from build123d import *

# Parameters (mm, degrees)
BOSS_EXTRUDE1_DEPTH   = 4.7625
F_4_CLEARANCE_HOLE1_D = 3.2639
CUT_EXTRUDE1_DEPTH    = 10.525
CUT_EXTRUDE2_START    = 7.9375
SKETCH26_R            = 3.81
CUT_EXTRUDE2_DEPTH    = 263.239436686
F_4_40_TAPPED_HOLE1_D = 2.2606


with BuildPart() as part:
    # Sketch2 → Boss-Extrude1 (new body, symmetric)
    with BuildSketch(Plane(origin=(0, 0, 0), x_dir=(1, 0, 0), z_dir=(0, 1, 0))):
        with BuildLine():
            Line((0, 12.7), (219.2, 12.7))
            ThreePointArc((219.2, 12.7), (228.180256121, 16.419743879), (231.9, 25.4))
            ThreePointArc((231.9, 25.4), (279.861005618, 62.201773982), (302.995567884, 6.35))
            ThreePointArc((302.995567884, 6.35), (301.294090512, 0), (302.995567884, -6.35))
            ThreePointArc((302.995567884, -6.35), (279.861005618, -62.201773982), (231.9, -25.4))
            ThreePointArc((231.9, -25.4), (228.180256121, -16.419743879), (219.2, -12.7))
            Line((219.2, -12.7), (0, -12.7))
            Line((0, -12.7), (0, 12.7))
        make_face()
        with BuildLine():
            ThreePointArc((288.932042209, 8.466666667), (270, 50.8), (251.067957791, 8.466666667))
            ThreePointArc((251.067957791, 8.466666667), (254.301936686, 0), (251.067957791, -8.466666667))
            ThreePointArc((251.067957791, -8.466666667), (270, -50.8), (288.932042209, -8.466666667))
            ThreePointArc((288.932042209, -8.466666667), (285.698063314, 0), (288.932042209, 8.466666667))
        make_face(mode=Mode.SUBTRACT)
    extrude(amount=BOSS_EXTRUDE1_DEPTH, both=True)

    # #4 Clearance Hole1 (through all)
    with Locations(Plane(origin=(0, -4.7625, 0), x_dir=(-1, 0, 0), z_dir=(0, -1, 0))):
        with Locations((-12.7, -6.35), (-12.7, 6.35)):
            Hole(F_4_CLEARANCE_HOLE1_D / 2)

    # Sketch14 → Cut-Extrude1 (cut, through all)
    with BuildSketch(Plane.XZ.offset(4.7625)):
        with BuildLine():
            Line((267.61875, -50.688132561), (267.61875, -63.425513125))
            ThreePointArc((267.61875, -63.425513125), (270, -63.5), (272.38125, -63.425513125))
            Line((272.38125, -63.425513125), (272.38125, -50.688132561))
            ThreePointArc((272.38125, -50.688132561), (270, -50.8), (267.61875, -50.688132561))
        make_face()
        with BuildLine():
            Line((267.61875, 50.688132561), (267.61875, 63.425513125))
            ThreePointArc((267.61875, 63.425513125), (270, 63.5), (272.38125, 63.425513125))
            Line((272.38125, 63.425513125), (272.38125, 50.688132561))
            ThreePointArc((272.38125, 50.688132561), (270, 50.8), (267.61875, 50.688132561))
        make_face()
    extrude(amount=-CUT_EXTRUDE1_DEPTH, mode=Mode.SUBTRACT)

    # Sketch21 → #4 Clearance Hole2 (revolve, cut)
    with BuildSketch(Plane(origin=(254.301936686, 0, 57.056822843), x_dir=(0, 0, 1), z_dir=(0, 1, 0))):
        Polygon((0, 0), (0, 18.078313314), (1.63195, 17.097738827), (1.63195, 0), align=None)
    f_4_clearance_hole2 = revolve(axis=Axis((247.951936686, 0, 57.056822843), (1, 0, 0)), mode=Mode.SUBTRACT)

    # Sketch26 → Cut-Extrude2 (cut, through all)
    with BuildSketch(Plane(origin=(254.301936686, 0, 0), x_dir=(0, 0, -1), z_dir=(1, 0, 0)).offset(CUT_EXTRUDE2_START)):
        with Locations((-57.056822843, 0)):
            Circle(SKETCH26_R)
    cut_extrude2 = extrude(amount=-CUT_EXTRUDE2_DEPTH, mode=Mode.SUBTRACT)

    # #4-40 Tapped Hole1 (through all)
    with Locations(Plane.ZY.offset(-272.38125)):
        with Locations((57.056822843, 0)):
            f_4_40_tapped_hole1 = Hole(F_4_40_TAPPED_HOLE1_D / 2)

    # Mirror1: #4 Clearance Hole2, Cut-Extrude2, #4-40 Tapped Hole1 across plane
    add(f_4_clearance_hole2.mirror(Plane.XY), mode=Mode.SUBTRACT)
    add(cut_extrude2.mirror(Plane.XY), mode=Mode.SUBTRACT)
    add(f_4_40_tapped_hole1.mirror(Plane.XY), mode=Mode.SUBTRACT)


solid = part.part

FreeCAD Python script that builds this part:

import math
import FreeCAD as App
import Part
import Sketcher
Q = App.Units.Quantity

doc = App.newDocument("Part")
body = doc.addObject("PartDesign::Body", "Body")
body.AllowCompound = True

# Sketch on XZ plane
sketch1 = body.newObject("Sketcher::SketchObject", "Sketch")
sketch1.AttachmentSupport = (doc.getObject("XZ_Plane"), [""])
sketch1.MapMode = "FlatFace"
sketch1.addGeometry(Part.LineSegment(App.Vector(219, -13, 0), App.Vector(0, -13, 0)), False)
sketch1.addGeometry(Part.LineSegment(App.Vector(0, -13, 0), App.Vector(0, 13, 0)), False)
sketch1.addGeometry(Part.LineSegment(App.Vector(0, 13, 0), App.Vector(219, 13, 0)), False)
sketch1.addGeometry(Part.ArcOfCircle(Part.Circle(App.Vector(219, 25, 0), App.Vector(0, 0, 1), 13), math.radians(-90), math.radians(0)), False)
sketch1.addGeometry(Part.ArcOfCircle(Part.Circle(App.Vector(270, 25, 0), App.Vector(0, 0, 1), 38), math.radians(-30), math.radians(180)), False)
sketch1.addGeometry(Part.ArcOfCircle(Part.Circle(App.Vector(314, 0, 0), App.Vector(0, 0, 1), 13), math.radians(150), math.radians(210)), False)
sketch1.addGeometry(Part.ArcOfCircle(Part.Circle(App.Vector(270, -25, 0), App.Vector(0, 0, 1), 38), math.radians(180), math.radians(390)), False)
sketch1.addGeometry(Part.ArcOfCircle(Part.Circle(App.Vector(219, -25, 0), App.Vector(0, 0, 1), 13), math.radians(0), math.radians(90)), False)
sketch1.addGeometry(Part.ArcOfCircle(Part.Circle(App.Vector(298, 0, 0), App.Vector(0, 0, 1), 13), math.radians(138), math.radians(222)), False)
sketch1.addGeometry(Part.ArcOfCircle(Part.Circle(App.Vector(270, 25, 0), App.Vector(0, 0, 1), 25), math.radians(-42), math.radians(222)), False)
sketch1.addGeometry(Part.ArcOfCircle(Part.Circle(App.Vector(242, 0, 0), App.Vector(0, 0, 1), 13), math.radians(-42), math.radians(42)), False)
sketch1.addGeometry(Part.ArcOfCircle(Part.Circle(App.Vector(270, -25, 0), App.Vector(0, 0, 1), 25), math.radians(138), math.radians(402)), False)
sketch1.addConstraint(Sketcher.Constraint("Coincident", 0, 2, 1, 1))
sketch1.addConstraint(Sketcher.Constraint("Coincident", 1, 2, 2, 1))
sketch1.addConstraint(Sketcher.Constraint("Tangent", 2, 2, 3, 1))
sketch1.addConstraint(Sketcher.Constraint("Tangent", 3, 2, 4, 2))
sketch1.addConstraint(Sketcher.Constraint("Tangent", 4, 1, 5, 1))
sketch1.addConstraint(Sketcher.Constraint("Tangent", 5, 2, 6, 2))
sketch1.addConstraint(Sketcher.Constraint("Tangent", 6, 1, 7, 1))
sketch1.addConstraint(Sketcher.Constraint("Tangent", 7, 2, 0, 1))
sketch1.addConstraint(Sketcher.Constraint("Tangent", 8, 1, 9, 1))
sketch1.addConstraint(Sketcher.Constraint("Tangent", 9, 2, 10, 2))
sketch1.addConstraint(Sketcher.Constraint("Tangent", 10, 1, 11, 1))
sketch1.addConstraint(Sketcher.Constraint("Tangent", 11, 2, 8, 2))
sketch1.addConstraint(Sketcher.Constraint("Horizontal", 0))
sketch1.addConstraint(Sketcher.Constraint("Vertical", 1))
sketch1.addConstraint(Sketcher.Constraint("Horizontal", 2))
sketch1.addConstraint(Sketcher.Constraint("Coincident", 9, 3, 4, 3))
sketch1.addConstraint(Sketcher.Constraint("Coincident", 11, 3, 6, 3))
sketch1.addConstraint(Sketcher.Constraint("Equal", 3, 5))
sketch1.addConstraint(Sketcher.Constraint("Equal", 4, 6))
sketch1.addConstraint(Sketcher.Constraint("Equal", 5, 7))
sketch1.addConstraint(Sketcher.Constraint("Equal", 7, 8))
sketch1.addConstraint(Sketcher.Constraint("Equal", 8, 10))
sketch1.addConstraint(Sketcher.Constraint("Equal", 9, 11))
sketch1.addConstraint(Sketcher.Constraint("Symmetric", 0, 2, 1, 2, -1, 1))
sketch1.addConstraint(Sketcher.Constraint("Symmetric", 4, 3, 6, 3, -1))
sketch1.addConstraint(Sketcher.Constraint("Horizontal", 3, 3, 4, 3))
sketch1.addConstraint(Sketcher.Constraint("Radius", 9, Q("1 in")))
sketch1.addConstraint(Sketcher.Constraint("Radius", 3, Q("0.5 in")))
sketch1.addConstraint(Sketcher.Constraint("Radius", 4, Q("1.5 in")))
sketch1.addConstraint(Sketcher.Constraint("DistanceY", 1, 1, 1, 2, Q("1 in")))
sketch1.addConstraint(Sketcher.Constraint("DistanceX", 0, 2, 0, 1, 219.2))
pad1 = body.newObject("PartDesign::Pad", "Pad")
pad1.Profile = sketch1
pad1.Length = Q("0.375 in")
pad1.Midplane = True

# Sketch on XZ plane
sketch2 = body.newObject("Sketcher::SketchObject", "Sketch001")
sketch2.AttachmentSupport = (doc.getObject("XZ_Plane"), [""])
sketch2.MapMode = "FlatFace"
sketch2.AttachmentOffset = App.Placement(App.Vector(0, 0, 0.1875 * 25.4), App.Rotation())
sketch2.addGeometry(Part.Circle(App.Vector(12.7, 6.3, 0), App.Vector(0, 0, 1), 1.6), False)
sketch2.addGeometry(Part.Circle(App.Vector(12.7, -6.3, 0), App.Vector(0, 0, 1), 1.6), False)
sketch2.addConstraint(Sketcher.Constraint("Equal", 0, 1))
sketch2.addConstraint(Sketcher.Constraint("Symmetric", 0, 3, 1, 3, -1))
sketch2.addConstraint(Sketcher.Constraint("Diameter", 0, Q("0.1285 in")))
sketch2.addConstraint(Sketcher.Constraint("DistanceX", -1, 1, 0, 3, Q("0.5 in")))
sketch2.addConstraint(Sketcher.Constraint("DistanceY", 1, 3, 0, 3, Q("0.5 in")))
doc.recompute()
hole = body.newObject("PartDesign::Hole", "Hole")
hole.Profile = sketch2
hole.ThreadType = "None"
hole.Diameter = Q("0.1285 in")
hole.DepthType = "ThroughAll"

# Sketch on XZ plane
sketch3 = body.newObject("Sketcher::SketchObject", "Sketch002")
sketch3.AttachmentSupport = (doc.getObject("XZ_Plane"), [""])
sketch3.MapMode = "FlatFace"
sketch3.AttachmentOffset = App.Placement(App.Vector(0, 0, 0.1875 * 25.4), App.Rotation())
sketch3.addGeometry(Part.LineSegment(App.Vector(267.6, -50.7, 0), App.Vector(267.6, -63.4, 0)), False)
sketch3.addGeometry(Part.ArcOfCircle(Part.Circle(App.Vector(270, -25.4, 0), App.Vector(0, 0, 1), 38.1), math.radians(-93.58), math.radians(-86.42)), False)
sketch3.addGeometry(Part.LineSegment(App.Vector(272.4, -63.4, 0), App.Vector(272.4, -50.7, 0)), False)
sketch3.addGeometry(Part.ArcOfCircle(Part.Circle(App.Vector(270, -25.4, 0), App.Vector(0, 0, 1), 25.4), math.radians(-95.38), math.radians(-84.62)), False)
sketch3.addGeometry(Part.LineSegment(App.Vector(267.6, 63.4, 0), App.Vector(267.6, 50.7, 0)), False)
sketch3.addGeometry(Part.ArcOfCircle(Part.Circle(App.Vector(270, 25.4, 0), App.Vector(0, 0, 1), 25.4), math.radians(84.62), math.radians(95.38)), False)
sketch3.addGeometry(Part.LineSegment(App.Vector(272.4, 50.7, 0), App.Vector(272.4, 63.4, 0)), False)
sketch3.addGeometry(Part.ArcOfCircle(Part.Circle(App.Vector(270, 25.4, 0), App.Vector(0, 0, 1), 38.1), math.radians(86.42), math.radians(93.58)), False)
sketch3.addConstraint(Sketcher.Constraint("Coincident", 0, 2, 1, 1))
sketch3.addConstraint(Sketcher.Constraint("Coincident", 1, 2, 2, 1))
sketch3.addConstraint(Sketcher.Constraint("Coincident", 2, 2, 3, 2))
sketch3.addConstraint(Sketcher.Constraint("Coincident", 3, 1, 0, 1))
sketch3.addConstraint(Sketcher.Constraint("Coincident", 4, 2, 5, 2))
sketch3.addConstraint(Sketcher.Constraint("Coincident", 5, 1, 6, 1))
sketch3.addConstraint(Sketcher.Constraint("Coincident", 6, 2, 7, 1))
sketch3.addConstraint(Sketcher.Constraint("Coincident", 7, 2, 4, 1))
sketch3.addConstraint(Sketcher.Constraint("Vertical", 0))
sketch3.addConstraint(Sketcher.Constraint("Vertical", 2))
sketch3.addConstraint(Sketcher.Constraint("Vertical", 4))
sketch3.addConstraint(Sketcher.Constraint("Vertical", 6))
sketch3.addConstraint(Sketcher.Constraint("Coincident", 3, 3, 1, 3))
sketch3.addConstraint(Sketcher.Constraint("Coincident", 7, 3, 5, 3))
sketch3.addConstraint(Sketcher.Constraint("Equal", 3, 5))
sketch3.addConstraint(Sketcher.Constraint("Equal", 1, 7))
sketch3.addConstraint(Sketcher.Constraint("Symmetric", 1, 3, 5, 3, -1))
sketch3.addConstraint(Sketcher.Constraint("Horizontal", 0, 2, 1, 2))
sketch3.addConstraint(Sketcher.Constraint("Horizontal", 4, 2, 5, 1))
sketch3.addConstraint(Sketcher.Constraint("Vertical", 3, 1, 4, 2))
sketch3.addConstraint(Sketcher.Constraint("Radius", 3, Q("1 in")))
sketch3.addConstraint(Sketcher.Constraint("Radius", 1, Q("1.5 in")))
sketch3.addConstraint(Sketcher.Constraint("DistanceY", 1, 3, -1, 1, Q("1 in")))
sketch3.addConstraint(Sketcher.Constraint("DistanceX", 0, 2, 1, 3, Q("0.09375 in")))
sketch3.addConstraint(Sketcher.Constraint("DistanceX", -1, 1, 1, 3, 270.0))
pocket1 = body.newObject("PartDesign::Pocket", "Pocket")
pocket1.Profile = sketch3
pocket1.Type = "ThroughAll"

# Sketch on XZ plane
sketch4 = body.newObject("Sketcher::SketchObject", "Sketch003")
sketch4.AttachmentSupport = (doc.getObject("XZ_Plane"), [""])
sketch4.MapMode = "FlatFace"
sketch4.addGeometry(Part.LineSegment(App.Vector(272.4, 57.1, 0), App.Vector(254.3, 57.1, 0)), False)
sketch4.addGeometry(Part.LineSegment(App.Vector(254.3, 57.1, 0), App.Vector(254.3, 58.7, 0)), False)
sketch4.addGeometry(Part.LineSegment(App.Vector(254.3, 58.7, 0), App.Vector(271.4, 58.7, 0)), False)
sketch4.addGeometry(Part.LineSegment(App.Vector(271.4, 58.7, 0), App.Vector(272.4, 57.1, 0)), False)
sketch4.addGeometry(Part.LineSegment(App.Vector(254.3, 57.1, 0), App.Vector(272.4, 57.1, 0)), True)  # axis
sketch4.addConstraint(Sketcher.Constraint("Coincident", 0, 2, 1, 1))
sketch4.addConstraint(Sketcher.Constraint("Coincident", 1, 2, 2, 1))
sketch4.addConstraint(Sketcher.Constraint("Coincident", 2, 2, 3, 1))
sketch4.addConstraint(Sketcher.Constraint("Coincident", 3, 2, 0, 1))
sketch4.addConstraint(Sketcher.Constraint("Horizontal", 0))
sketch4.addConstraint(Sketcher.Constraint("Vertical", 1))
sketch4.addConstraint(Sketcher.Constraint("Horizontal", 2))
sketch4.addConstraint(Sketcher.Constraint("Horizontal", 4))
sketch4.addConstraint(Sketcher.Constraint("Coincident", 4, 1, 0, 2))
sketch4.addConstraint(Sketcher.Constraint("Equal", 0, 4))
sketch4.addConstraint(Sketcher.Constraint("Angle", 3, Q("-59 deg")))
sketch4.addConstraint(Sketcher.Constraint("DistanceX", 2, 1, 2, 2, 17.097739))
sketch4.addConstraint(Sketcher.Constraint("DistanceY", 1, 1, 1, 2, 1.63195))
sketch4.addConstraint(Sketcher.Constraint("DistanceX", -1, 1, 3, 2, 272.38025))
sketch4.addConstraint(Sketcher.Constraint("DistanceY", -1, 1, 0, 2, 57.056823))
groove = body.newObject("PartDesign::Groove", "Groove")
groove.Profile = sketch4
groove.ReferenceAxis = (sketch4, ["Axis0"])
groove.Angle = 360

# Sketch on YZ plane
sketch5 = body.newObject("Sketcher::SketchObject", "Sketch004")
sketch5.AttachmentSupport = (doc.getObject("YZ_Plane"), [""])
sketch5.MapMode = "FlatFace"
sketch5.AttachmentOffset = App.Placement(App.Vector(0, 0, 262.239437), App.Rotation())
sketch5.addGeometry(Part.Circle(App.Vector(0, 57.1, 0), App.Vector(0, 0, 1), 3.8), False)
sketch5.addConstraint(Sketcher.Constraint("PointOnObject", 0, 3, -2))
sketch5.addConstraint(Sketcher.Constraint("Diameter", 0, Q("0.3 in")))
sketch5.addConstraint(Sketcher.Constraint("DistanceY", -1, 1, 0, 3, 57.056823))
pocket2 = body.newObject("PartDesign::Pocket", "Pocket001")
pocket2.Profile = sketch5
pocket2.Type = "ThroughAll"

# Sketch on YZ plane
sketch6 = body.newObject("Sketcher::SketchObject", "Sketch005")
sketch6.AttachmentSupport = (doc.getObject("YZ_Plane"), [""])
sketch6.MapMode = "FlatFace"
sketch6.AttachmentOffset = App.Placement(App.Vector(0, 0, 272.38125), App.Rotation())
sketch6.addGeometry(Part.Circle(App.Vector(0, 57.1, 0), App.Vector(0, 0, 1), 1.1), False)
sketch6.addConstraint(Sketcher.Constraint("PointOnObject", 0, 3, -2))
sketch6.addConstraint(Sketcher.Constraint("Diameter", 0, Q("0.089 in")))
sketch6.addConstraint(Sketcher.Constraint("DistanceY", -1, 1, 0, 3, 57.056823))
doc.recompute()
hole2 = body.newObject("PartDesign::Hole", "Hole001")
hole2.Profile = sketch6
hole2.ThreadType = "None"
hole2.Diameter = Q("0.089 in")
hole2.DepthType = "ThroughAll"
hole2.Reversed = True
doc.recompute()

mirrored = body.newObject("PartDesign::Mirrored", "Mirrored")
mirrored.Originals = [groove, pocket2, hole2]
mirrored.MirrorPlane = (doc.getObject("XY_Plane"), [""])
body.Tip = mirrored

doc.recompute()
